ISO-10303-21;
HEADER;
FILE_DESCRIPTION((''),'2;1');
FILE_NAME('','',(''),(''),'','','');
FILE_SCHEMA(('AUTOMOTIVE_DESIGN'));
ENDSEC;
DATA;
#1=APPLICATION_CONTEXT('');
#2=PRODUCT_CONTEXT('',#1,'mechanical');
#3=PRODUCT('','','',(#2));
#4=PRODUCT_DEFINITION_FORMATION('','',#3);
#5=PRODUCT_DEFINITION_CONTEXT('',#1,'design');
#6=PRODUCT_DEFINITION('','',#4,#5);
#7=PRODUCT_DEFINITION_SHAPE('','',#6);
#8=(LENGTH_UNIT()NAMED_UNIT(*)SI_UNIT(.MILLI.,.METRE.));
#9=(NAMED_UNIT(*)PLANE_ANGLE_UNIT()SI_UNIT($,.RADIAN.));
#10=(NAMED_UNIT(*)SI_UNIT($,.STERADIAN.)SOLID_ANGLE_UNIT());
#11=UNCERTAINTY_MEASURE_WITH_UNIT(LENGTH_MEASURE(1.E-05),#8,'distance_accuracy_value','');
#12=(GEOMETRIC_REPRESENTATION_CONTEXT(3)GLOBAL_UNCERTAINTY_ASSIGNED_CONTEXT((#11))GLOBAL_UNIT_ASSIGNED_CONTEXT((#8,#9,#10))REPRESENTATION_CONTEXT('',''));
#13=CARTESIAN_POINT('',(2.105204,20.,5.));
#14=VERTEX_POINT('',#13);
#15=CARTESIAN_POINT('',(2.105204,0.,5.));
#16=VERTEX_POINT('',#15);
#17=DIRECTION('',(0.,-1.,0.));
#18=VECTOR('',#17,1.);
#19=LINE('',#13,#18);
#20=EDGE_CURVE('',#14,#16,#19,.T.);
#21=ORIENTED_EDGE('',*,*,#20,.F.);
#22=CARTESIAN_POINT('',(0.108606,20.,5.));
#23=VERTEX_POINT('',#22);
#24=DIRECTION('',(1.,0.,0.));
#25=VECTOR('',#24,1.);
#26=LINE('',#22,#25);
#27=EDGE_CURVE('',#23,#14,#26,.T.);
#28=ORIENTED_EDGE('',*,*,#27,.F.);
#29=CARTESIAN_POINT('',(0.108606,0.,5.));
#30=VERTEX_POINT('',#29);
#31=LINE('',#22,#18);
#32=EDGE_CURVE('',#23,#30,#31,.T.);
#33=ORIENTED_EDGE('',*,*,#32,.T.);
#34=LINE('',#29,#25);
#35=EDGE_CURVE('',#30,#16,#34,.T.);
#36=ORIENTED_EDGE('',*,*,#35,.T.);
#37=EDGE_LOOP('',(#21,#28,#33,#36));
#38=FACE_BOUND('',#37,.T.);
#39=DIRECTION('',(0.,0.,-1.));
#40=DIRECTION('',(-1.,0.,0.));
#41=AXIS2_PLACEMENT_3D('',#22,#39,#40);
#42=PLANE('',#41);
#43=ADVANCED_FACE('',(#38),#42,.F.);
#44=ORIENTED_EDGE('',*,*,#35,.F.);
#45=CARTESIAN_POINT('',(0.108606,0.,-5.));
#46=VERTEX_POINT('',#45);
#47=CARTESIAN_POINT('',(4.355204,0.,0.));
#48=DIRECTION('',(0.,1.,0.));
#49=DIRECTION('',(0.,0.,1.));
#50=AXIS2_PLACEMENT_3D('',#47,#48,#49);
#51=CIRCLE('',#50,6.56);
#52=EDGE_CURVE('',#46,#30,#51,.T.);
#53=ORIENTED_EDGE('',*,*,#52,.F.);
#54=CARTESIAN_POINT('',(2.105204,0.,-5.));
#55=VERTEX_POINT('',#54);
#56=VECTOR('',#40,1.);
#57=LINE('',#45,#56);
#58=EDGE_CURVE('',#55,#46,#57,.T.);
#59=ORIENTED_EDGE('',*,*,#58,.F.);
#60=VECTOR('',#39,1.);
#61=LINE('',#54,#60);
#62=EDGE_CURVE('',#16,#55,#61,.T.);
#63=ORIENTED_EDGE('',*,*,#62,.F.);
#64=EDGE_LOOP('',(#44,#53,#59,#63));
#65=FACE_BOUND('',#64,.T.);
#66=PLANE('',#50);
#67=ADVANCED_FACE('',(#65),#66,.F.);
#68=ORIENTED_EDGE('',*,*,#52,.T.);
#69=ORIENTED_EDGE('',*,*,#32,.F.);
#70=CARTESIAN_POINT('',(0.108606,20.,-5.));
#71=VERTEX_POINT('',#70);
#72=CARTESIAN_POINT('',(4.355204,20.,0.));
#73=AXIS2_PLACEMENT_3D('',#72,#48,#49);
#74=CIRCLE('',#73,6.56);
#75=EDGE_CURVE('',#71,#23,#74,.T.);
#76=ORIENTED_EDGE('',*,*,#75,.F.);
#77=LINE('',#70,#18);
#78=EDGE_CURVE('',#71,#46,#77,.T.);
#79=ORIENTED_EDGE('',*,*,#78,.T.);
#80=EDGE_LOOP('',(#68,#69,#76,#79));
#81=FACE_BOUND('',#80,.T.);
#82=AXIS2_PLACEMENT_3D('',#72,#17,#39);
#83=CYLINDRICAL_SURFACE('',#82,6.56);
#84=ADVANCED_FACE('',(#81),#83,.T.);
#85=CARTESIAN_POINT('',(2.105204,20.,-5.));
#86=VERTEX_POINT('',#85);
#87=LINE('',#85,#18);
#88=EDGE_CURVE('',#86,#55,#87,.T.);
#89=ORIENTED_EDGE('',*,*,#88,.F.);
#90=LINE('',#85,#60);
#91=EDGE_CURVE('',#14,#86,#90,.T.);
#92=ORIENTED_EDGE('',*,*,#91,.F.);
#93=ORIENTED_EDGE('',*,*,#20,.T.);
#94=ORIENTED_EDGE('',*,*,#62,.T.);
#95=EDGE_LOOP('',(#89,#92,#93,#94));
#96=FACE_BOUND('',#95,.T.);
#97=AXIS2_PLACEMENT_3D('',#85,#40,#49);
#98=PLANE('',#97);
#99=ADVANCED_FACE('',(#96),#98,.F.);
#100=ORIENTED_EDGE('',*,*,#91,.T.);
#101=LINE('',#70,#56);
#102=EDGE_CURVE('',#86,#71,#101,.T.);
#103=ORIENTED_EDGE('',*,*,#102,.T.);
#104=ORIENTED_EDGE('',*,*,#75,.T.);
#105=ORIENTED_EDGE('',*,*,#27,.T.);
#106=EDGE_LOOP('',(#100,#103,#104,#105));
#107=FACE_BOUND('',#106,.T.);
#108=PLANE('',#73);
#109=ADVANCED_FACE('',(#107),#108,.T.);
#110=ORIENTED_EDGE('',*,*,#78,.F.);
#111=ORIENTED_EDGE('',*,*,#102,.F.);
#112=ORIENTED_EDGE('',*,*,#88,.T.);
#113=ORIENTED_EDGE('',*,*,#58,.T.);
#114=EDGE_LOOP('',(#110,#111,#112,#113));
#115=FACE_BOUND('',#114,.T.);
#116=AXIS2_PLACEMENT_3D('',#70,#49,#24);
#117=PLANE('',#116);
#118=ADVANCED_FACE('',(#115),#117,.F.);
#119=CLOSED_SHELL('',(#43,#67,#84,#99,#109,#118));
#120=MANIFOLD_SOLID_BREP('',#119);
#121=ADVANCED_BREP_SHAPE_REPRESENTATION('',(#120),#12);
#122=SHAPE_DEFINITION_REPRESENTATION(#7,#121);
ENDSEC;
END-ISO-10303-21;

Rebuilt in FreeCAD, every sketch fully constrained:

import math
import FreeCAD as App
import Part
import Sketcher

V = App.Vector
Q = App.Units.Quantity

doc = App.newDocument("Part")
body = doc.addObject("PartDesign::Body", "Body")

# Sketch on XZ plane
sketch1 = body.newObject("Sketcher::SketchObject", "Sketch")
sketch1.AttachmentSupport = (doc.getObject("XZ_Plane"), [""])
sketch1.MapMode = "FlatFace"
sketch1.addGeometry(Part.LineSegment(V(2.1, -5, 0), V(0.1, -5, 0)), False)
sketch1.addGeometry(Part.ArcOfCircle(Part.Circle(V(4.4, 0, 0), V(0, 0, 1), 6.6), math.radians(130), math.radians(230)), False)
sketch1.addGeometry(Part.LineSegment(V(0.1, 5, 0), V(2.1, 5, 0)), False)
sketch1.addGeometry(Part.LineSegment(V(2.1, 5, 0), V(2.1, -5, 0)), False)
sketch1.addConstraint(Sketcher.Constraint("Coincident", 0, 2, 1, 2))
sketch1.addConstraint(Sketcher.Constraint("Coincident", 1, 1, 2, 1))
sketch1.addConstraint(Sketcher.Constraint("Coincident", 2, 2, 3, 1))
sketch1.addConstraint(Sketcher.Constraint("Coincident", 3, 2, 0, 1))
sketch1.addConstraint(Sketcher.Constraint("Horizontal", 0))
sketch1.addConstraint(Sketcher.Constraint("Horizontal", 2))
sketch1.addConstraint(Sketcher.Constraint("Vertical", 3))
sketch1.addConstraint(Sketcher.Constraint("Symmetric", 0, 2, 1, 1, -1))
sketch1.addConstraint(Sketcher.Constraint("DistanceY", 3, 2, 3, 1, Q("10 mm")))
sketch1.addConstraint(Sketcher.Constraint("Radius", 1, Q("6.56 mm")))
sketch1.addConstraint(Sketcher.Constraint("DistanceX", 2, 2, 1, 3, Q("2.25 mm")))
sketch1.addConstraint(Sketcher.Constraint("DistanceX", -1, 1, 1, 3, Q("4.355204 mm")))
pad1 = body.newObject("PartDesign::Pad", "Pad")
pad1.Profile = sketch1
pad1.Length = 20
pad1.Reversed = True

doc.recompute()
